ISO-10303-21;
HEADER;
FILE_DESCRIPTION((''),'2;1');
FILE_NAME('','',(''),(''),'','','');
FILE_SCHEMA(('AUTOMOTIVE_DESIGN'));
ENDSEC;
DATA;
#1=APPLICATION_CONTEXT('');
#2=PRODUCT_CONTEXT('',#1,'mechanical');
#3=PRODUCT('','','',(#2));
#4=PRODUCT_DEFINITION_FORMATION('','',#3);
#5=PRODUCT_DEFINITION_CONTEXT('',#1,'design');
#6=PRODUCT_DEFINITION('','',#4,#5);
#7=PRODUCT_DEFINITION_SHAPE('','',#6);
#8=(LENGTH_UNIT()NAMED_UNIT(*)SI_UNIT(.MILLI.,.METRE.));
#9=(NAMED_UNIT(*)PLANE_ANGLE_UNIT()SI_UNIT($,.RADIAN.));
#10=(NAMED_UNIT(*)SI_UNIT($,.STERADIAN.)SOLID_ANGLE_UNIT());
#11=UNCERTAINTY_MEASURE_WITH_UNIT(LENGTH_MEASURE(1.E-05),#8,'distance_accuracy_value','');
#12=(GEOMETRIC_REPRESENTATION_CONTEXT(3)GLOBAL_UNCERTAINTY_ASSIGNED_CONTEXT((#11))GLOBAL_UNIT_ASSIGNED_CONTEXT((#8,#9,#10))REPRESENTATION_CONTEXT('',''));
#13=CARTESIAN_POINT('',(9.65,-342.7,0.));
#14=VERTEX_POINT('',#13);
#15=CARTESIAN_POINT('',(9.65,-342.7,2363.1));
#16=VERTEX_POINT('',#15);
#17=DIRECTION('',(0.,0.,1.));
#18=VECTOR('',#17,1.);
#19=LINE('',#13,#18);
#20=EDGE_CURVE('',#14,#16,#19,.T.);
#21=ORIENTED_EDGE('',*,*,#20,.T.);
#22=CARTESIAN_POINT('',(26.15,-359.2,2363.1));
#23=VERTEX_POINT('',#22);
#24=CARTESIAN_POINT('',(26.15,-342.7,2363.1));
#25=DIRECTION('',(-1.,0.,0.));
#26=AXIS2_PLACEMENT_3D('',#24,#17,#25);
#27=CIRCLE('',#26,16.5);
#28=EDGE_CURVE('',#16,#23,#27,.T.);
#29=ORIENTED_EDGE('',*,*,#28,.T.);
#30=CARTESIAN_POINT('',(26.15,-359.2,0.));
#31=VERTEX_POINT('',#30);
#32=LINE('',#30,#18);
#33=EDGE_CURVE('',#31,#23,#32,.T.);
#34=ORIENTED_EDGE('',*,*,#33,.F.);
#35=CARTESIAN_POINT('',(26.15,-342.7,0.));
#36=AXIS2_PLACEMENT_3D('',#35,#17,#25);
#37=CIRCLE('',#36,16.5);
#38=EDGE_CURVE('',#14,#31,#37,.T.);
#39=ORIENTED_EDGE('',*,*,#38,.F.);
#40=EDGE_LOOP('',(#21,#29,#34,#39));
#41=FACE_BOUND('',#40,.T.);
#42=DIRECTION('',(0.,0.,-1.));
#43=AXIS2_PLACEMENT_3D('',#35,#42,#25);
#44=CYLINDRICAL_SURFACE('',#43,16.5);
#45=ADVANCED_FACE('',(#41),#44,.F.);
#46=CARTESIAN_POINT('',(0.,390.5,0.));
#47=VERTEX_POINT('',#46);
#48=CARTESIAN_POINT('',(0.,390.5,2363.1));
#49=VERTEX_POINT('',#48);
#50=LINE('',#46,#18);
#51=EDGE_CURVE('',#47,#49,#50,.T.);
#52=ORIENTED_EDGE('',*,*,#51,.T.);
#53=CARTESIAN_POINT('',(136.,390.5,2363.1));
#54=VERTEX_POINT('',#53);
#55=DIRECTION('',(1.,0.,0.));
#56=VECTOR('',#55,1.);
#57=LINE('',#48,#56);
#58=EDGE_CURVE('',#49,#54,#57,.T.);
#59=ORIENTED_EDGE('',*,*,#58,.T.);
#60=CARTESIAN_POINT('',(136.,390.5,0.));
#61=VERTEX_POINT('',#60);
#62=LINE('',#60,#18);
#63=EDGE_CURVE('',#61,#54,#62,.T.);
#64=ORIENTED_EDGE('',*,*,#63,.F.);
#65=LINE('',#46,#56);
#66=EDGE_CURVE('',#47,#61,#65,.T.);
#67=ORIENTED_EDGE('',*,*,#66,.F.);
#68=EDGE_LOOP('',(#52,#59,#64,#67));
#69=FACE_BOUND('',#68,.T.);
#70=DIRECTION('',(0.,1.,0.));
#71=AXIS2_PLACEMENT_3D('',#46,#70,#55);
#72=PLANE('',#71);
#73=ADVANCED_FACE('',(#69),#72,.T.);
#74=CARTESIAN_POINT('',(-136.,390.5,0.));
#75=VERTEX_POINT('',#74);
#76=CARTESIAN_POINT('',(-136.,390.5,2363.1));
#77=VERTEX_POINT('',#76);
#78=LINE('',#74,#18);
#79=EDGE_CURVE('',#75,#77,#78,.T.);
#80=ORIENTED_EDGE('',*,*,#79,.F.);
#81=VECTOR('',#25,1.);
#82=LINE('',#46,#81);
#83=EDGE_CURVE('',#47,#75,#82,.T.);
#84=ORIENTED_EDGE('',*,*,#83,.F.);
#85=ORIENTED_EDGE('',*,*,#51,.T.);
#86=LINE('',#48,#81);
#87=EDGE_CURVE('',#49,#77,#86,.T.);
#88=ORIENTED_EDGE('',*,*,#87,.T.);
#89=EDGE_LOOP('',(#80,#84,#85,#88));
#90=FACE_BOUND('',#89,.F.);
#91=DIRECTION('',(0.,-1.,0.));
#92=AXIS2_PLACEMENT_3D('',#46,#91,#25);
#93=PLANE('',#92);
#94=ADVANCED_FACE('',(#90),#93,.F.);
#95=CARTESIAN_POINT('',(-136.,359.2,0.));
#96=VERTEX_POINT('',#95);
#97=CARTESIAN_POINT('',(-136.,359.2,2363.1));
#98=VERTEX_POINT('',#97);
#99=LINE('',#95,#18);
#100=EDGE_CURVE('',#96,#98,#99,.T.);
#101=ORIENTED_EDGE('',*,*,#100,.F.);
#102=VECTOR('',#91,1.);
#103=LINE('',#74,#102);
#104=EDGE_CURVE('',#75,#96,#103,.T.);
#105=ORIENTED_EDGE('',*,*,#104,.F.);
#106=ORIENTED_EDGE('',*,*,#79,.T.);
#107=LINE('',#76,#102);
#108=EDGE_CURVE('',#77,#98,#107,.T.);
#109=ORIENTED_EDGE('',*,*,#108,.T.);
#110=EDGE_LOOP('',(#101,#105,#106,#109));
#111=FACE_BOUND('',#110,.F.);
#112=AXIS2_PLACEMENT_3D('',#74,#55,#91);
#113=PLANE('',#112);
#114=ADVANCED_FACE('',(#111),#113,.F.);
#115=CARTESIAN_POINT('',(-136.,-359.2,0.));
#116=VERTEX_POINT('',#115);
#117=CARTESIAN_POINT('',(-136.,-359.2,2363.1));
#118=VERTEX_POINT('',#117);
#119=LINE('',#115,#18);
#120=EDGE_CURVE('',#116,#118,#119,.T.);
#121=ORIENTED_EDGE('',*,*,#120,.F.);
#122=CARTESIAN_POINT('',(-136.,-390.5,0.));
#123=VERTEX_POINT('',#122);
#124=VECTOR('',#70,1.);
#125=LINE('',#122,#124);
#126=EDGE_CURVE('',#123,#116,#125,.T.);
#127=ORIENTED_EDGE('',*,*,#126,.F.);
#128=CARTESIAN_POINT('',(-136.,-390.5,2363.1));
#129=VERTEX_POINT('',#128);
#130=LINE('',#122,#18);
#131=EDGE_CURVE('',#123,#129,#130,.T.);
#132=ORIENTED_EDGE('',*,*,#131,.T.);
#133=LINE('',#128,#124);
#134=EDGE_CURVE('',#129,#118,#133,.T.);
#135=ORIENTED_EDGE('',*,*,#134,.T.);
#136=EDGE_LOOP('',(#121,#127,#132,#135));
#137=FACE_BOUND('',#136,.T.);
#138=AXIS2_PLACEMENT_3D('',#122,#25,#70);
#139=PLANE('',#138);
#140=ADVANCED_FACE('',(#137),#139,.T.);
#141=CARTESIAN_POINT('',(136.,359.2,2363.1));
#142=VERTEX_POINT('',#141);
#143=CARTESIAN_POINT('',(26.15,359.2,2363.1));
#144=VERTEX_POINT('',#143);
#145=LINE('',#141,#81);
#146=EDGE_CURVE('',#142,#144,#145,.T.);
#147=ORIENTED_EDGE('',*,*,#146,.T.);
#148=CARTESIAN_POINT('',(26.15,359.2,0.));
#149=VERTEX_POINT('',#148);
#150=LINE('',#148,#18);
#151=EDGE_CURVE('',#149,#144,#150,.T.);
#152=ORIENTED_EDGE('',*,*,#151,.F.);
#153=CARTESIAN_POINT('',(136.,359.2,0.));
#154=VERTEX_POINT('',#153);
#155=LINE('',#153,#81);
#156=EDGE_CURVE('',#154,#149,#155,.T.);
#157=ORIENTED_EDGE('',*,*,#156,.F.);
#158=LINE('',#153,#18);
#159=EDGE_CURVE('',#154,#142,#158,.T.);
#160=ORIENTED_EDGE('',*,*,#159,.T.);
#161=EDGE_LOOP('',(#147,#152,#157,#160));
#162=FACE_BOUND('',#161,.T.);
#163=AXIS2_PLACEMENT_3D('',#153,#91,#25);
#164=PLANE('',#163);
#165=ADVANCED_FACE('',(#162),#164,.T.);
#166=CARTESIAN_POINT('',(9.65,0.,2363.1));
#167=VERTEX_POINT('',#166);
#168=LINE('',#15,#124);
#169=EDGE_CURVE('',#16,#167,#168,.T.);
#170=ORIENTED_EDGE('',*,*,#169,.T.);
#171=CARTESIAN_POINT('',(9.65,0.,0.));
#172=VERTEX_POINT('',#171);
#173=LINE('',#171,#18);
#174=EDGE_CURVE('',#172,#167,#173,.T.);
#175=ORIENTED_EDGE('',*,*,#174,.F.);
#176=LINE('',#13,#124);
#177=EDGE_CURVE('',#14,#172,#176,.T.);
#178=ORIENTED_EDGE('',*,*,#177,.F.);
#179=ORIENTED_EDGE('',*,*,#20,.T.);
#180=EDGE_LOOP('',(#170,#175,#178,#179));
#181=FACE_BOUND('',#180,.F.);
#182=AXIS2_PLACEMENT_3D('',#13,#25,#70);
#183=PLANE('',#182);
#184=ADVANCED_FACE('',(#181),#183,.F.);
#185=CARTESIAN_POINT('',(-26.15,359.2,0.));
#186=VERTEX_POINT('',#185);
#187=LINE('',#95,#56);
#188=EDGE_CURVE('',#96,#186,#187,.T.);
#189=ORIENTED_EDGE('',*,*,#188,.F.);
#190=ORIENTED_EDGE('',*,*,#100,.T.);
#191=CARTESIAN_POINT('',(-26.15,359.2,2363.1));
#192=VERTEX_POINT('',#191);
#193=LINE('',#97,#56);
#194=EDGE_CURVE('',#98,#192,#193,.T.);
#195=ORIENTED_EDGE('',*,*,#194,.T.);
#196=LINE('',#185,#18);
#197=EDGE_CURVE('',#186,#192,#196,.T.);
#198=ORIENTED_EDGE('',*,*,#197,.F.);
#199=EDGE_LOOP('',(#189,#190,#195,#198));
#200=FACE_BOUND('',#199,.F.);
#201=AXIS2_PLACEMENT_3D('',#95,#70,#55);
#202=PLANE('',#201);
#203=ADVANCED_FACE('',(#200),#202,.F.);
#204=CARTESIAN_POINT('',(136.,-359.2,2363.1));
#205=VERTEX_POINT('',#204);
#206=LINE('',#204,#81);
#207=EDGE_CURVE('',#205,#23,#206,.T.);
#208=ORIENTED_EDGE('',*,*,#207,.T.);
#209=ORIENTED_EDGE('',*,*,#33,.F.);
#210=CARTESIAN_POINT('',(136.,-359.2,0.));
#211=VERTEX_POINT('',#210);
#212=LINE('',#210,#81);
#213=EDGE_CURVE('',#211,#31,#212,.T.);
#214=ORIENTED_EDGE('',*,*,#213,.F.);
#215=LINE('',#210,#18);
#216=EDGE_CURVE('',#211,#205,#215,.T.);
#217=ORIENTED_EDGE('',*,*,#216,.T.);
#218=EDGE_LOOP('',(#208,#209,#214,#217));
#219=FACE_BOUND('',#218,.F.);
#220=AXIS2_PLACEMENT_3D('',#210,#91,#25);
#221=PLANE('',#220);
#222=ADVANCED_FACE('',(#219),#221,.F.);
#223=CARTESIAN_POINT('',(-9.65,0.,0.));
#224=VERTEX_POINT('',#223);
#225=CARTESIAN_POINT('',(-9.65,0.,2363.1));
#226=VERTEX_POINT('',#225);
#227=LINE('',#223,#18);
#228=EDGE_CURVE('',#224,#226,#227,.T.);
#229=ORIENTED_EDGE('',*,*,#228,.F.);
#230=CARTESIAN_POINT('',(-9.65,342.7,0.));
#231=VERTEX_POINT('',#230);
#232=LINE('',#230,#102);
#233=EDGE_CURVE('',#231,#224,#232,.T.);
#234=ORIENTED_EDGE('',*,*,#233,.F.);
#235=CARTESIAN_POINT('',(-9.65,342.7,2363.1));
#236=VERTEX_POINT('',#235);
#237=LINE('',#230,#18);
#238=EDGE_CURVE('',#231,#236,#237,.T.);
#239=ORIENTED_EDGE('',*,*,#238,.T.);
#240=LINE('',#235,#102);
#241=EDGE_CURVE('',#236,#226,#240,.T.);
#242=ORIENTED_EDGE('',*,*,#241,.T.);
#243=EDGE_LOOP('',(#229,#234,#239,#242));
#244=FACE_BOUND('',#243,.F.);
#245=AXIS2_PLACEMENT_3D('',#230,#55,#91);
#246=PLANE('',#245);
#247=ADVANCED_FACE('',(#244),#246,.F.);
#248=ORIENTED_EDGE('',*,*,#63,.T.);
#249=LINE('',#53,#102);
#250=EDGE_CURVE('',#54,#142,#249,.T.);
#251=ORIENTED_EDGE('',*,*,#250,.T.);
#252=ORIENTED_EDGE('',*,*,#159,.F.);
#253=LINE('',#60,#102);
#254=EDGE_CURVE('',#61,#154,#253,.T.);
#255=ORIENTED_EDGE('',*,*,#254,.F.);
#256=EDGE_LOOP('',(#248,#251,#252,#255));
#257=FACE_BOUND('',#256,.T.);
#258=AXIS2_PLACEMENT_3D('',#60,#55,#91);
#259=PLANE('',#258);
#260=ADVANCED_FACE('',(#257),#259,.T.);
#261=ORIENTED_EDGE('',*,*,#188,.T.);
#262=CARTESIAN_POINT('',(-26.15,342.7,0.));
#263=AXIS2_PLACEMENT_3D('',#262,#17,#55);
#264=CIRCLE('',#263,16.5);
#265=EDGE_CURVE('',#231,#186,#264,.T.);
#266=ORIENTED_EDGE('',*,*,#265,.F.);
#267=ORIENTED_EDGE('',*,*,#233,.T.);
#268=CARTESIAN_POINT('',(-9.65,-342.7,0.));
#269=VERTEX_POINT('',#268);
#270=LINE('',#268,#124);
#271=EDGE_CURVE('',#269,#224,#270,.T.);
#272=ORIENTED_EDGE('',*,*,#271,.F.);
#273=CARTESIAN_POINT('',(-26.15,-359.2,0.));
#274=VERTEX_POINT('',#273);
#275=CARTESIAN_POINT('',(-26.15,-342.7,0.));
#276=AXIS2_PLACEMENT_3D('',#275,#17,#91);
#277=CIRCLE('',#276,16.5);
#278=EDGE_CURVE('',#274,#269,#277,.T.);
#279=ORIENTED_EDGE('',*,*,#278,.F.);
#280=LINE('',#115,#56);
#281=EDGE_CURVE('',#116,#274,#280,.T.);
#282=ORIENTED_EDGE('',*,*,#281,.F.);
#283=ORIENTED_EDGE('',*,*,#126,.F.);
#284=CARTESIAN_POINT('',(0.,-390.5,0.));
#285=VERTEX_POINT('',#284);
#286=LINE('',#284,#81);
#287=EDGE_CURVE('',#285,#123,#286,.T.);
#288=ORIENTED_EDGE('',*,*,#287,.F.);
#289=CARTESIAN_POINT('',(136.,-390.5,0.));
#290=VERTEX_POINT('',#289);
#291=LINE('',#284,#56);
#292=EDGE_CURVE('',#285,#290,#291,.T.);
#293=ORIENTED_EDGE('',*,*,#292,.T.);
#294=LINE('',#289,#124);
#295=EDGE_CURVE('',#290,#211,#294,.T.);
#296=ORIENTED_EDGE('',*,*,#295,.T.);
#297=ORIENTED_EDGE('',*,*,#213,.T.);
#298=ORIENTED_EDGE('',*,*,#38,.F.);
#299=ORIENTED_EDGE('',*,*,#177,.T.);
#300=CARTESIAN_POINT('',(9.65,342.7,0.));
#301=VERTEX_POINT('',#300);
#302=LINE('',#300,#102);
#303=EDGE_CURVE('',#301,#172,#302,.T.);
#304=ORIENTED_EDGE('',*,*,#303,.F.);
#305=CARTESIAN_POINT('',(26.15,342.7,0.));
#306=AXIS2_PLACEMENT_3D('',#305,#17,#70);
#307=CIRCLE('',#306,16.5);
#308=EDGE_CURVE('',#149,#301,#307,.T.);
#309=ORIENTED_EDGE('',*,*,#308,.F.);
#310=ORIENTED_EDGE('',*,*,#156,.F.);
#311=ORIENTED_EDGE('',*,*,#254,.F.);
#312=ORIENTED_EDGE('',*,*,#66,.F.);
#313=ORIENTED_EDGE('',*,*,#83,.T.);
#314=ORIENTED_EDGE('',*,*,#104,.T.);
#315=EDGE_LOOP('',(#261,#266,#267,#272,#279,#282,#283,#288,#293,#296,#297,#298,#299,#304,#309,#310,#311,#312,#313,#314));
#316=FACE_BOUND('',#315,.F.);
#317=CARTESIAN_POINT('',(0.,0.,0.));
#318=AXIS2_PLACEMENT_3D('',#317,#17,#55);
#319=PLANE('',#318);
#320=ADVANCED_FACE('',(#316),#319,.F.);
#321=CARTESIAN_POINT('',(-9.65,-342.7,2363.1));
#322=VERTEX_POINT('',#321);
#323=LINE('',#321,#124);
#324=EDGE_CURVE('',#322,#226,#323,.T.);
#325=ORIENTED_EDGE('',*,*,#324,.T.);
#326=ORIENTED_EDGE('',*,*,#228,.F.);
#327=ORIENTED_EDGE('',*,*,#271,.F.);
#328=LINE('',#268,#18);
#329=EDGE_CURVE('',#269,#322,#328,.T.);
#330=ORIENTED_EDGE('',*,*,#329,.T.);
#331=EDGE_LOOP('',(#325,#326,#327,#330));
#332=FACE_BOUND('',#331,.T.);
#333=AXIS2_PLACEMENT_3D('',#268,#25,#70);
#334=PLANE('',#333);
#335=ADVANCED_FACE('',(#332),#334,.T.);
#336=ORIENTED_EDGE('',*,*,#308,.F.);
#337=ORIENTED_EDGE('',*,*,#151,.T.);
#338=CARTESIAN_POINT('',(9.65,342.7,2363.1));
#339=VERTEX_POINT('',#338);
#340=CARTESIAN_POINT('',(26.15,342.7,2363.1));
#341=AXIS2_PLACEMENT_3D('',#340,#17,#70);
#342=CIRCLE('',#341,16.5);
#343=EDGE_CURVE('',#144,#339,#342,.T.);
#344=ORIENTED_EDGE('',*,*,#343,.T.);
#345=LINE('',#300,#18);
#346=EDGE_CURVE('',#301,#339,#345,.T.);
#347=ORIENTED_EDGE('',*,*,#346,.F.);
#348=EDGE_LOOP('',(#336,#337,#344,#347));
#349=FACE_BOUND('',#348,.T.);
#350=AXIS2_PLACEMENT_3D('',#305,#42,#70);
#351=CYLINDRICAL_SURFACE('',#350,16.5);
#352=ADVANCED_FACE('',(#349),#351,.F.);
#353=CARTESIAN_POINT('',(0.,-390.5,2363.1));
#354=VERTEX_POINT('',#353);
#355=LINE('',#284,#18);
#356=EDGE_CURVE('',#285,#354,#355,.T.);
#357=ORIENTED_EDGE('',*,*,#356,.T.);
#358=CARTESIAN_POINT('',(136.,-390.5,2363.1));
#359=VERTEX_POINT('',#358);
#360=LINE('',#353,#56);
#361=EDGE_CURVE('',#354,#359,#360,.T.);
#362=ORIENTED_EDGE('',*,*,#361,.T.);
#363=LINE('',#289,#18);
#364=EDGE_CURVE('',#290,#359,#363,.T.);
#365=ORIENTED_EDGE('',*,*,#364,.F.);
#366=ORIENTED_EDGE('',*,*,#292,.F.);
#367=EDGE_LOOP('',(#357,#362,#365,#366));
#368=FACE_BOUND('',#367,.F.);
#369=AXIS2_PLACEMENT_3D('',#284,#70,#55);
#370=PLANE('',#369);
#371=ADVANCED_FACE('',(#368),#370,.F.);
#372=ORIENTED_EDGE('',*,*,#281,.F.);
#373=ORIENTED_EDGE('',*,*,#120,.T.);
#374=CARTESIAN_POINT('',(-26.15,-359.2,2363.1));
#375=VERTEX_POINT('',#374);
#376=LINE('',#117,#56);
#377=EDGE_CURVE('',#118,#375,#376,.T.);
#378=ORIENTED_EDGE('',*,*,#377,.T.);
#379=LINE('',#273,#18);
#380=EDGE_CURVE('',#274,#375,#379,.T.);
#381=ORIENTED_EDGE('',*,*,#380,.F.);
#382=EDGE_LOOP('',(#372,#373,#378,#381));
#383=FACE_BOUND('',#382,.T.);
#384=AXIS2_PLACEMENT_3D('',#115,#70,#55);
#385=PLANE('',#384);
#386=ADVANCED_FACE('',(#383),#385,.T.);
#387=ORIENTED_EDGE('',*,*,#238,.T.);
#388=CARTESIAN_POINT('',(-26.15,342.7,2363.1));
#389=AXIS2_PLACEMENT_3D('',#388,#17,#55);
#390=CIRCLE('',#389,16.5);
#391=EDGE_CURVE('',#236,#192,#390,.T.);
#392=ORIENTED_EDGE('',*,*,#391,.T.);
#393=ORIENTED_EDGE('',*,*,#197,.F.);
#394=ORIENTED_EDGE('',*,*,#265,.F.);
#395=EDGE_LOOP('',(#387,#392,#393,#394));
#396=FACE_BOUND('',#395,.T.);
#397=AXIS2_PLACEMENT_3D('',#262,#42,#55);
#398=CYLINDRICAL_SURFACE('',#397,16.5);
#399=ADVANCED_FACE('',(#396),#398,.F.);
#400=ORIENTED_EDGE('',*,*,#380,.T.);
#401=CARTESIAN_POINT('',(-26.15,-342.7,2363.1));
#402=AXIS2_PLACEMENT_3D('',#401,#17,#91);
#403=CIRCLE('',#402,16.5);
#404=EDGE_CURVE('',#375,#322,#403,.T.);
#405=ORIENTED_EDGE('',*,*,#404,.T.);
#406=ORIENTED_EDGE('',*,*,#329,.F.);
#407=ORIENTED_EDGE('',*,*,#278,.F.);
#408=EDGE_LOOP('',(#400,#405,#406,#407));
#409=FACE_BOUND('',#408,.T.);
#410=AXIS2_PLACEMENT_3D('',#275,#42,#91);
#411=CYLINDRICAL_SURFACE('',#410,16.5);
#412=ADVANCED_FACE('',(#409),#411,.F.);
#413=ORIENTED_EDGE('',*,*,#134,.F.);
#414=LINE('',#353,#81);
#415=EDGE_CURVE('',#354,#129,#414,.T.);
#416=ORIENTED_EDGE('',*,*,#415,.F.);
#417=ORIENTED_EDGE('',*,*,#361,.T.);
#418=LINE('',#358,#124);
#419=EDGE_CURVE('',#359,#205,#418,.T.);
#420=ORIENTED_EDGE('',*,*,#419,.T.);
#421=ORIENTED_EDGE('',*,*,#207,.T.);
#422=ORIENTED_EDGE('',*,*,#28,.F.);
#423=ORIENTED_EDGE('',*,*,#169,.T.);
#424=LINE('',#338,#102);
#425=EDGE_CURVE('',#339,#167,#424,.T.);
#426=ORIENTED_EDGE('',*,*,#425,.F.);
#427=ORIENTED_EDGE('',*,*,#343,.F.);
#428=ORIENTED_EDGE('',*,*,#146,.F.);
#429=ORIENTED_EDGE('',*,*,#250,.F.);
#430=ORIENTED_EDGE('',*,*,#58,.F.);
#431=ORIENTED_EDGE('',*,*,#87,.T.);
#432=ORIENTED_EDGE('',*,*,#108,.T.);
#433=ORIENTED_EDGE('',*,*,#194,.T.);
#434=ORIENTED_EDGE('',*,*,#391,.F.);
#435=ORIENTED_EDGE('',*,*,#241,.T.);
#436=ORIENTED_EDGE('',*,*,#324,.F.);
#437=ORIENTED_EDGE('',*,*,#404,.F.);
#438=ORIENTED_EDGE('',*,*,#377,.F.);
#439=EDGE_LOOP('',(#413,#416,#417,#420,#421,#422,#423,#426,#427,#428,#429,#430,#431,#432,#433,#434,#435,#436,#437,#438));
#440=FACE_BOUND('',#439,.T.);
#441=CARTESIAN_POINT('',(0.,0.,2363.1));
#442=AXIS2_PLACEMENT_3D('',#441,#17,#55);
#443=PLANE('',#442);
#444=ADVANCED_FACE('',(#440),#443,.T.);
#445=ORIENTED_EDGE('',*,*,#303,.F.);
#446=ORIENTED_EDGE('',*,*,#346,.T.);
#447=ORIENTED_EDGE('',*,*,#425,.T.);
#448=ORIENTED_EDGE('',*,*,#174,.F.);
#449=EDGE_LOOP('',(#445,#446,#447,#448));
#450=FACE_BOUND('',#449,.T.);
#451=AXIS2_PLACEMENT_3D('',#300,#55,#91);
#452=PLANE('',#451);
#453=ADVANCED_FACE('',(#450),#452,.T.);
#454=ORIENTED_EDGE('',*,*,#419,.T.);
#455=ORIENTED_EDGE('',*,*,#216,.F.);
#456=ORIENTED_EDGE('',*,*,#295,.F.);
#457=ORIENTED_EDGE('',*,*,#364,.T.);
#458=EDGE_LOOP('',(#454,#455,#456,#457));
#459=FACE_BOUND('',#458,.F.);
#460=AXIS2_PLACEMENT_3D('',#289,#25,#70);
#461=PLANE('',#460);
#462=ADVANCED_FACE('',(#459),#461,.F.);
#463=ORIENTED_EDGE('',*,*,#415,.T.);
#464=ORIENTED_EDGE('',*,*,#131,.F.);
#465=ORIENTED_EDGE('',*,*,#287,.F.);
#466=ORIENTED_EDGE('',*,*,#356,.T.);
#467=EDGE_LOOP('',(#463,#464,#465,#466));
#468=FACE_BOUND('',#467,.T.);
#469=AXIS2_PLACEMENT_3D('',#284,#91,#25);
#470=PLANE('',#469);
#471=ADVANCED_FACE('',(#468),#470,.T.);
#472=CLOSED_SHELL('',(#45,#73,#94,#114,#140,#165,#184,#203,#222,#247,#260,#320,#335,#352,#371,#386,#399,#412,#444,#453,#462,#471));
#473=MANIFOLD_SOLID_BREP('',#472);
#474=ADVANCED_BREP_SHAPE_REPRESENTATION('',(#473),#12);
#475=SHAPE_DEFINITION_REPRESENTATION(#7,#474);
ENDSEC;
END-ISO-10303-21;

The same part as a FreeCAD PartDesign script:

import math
import FreeCAD as App
import Part
import Sketcher
Q = App.Units.Quantity

doc = App.newDocument("Part")
body = doc.addObject("PartDesign::Body", "Body")

# Sketch on XY plane
sketch1 = doc.addObject("Sketcher::SketchObject", "Sketch")
body.addObject(sketch1)
sketch1.AttachmentSupport = (doc.XY_Plane, [""])
sketch1.MapMode = "FlatFace"
sketch1.addGeometry([
    Part.LineSegment(App.Vector(-136, -359, 0), App.Vector(-136, -390, 0)),  # 0
    Part.LineSegment(App.Vector(-136, -390, 0), App.Vector(136, -390, 0)),  # 1
    Part.LineSegment(App.Vector(136, -390, 0), App.Vector(136, -359, 0)),  # 2
    Part.LineSegment(App.Vector(136, -359, 0), App.Vector(26, -359, 0)),  # 3
    Part.ArcOfCircle(Part.Circle(App.Vector(26, -343, 0), App.Vector(0, 0, 1), 16), math.radians(180), math.radians(270)),  # 4
    Part.LineSegment(App.Vector(10, -343, 0), App.Vector(10, 343, 0)),  # 5
    Part.ArcOfCircle(Part.Circle(App.Vector(26, 343, 0), App.Vector(0, 0, 1), 16), math.radians(90), math.radians(180)),  # 6
    Part.LineSegment(App.Vector(26, 359, 0), App.Vector(136, 359, 0)),  # 7
    Part.LineSegment(App.Vector(136, 359, 0), App.Vector(136, 390, 0)),  # 8
    Part.LineSegment(App.Vector(136, 390, 0), App.Vector(-136, 390, 0)),  # 9
    Part.LineSegment(App.Vector(-136, 390, 0), App.Vector(-136, 359, 0)),  # 10
    Part.LineSegment(App.Vector(-136, 359, 0), App.Vector(-26, 359, 0)),  # 11
    Part.ArcOfCircle(Part.Circle(App.Vector(-26, 343, 0), App.Vector(0, 0, 1), 16), math.radians(0), math.radians(90)),  # 12
    Part.LineSegment(App.Vector(-10, 343, 0), App.Vector(-10, -343, 0)),  # 13
    Part.ArcOfCircle(Part.Circle(App.Vector(-26, -343, 0), App.Vector(0, 0, 1), 16), math.radians(-90), math.radians(0)),  # 14
    Part.LineSegment(App.Vector(-26, -359, 0), App.Vector(-136, -359, 0)),  # 15
], False)
sketch1.addConstraint([
    Sketcher.Constraint("Coincident", 0, 2, 1, 1),
    Sketcher.Constraint("Coincident", 1, 2, 2, 1),
    Sketcher.Constraint("Coincident", 2, 2, 3, 1),
    Sketcher.Constraint("Tangent", 3, 2, 4, 2),
    Sketcher.Constraint("Tangent", 4, 1, 5, 1),
    Sketcher.Constraint("Tangent", 5, 2, 6, 2),
    Sketcher.Constraint("Tangent", 6, 1, 7, 1),
    Sketcher.Constraint("Coincident", 7, 2, 8, 1),
    Sketcher.Constraint("Coincident", 8, 2, 9, 1),
    Sketcher.Constraint("Coincident", 9, 2, 10, 1),
    Sketcher.Constraint("Coincident", 10, 2, 11, 1),
    Sketcher.Constraint("Tangent", 11, 2, 12, 2),
    Sketcher.Constraint("Tangent", 12, 1, 13, 1),
    Sketcher.Constraint("Tangent", 13, 2, 14, 2),
    Sketcher.Constraint("Tangent", 14, 1, 15, 1),
    Sketcher.Constraint("Coincident", 15, 2, 0, 1),
    Sketcher.Constraint("Vertical", 0),
    Sketcher.Constraint("Horizontal", 1),
    Sketcher.Constraint("Vertical", 2),
    Sketcher.Constraint("Horizontal", 3),
    Sketcher.Constraint("Vertical", 5),
    Sketcher.Constraint("Horizontal", 7),
    Sketcher.Constraint("Vertical", 8),
    Sketcher.Constraint("Horizontal", 9),
    Sketcher.Constraint("Vertical", 10),
    Sketcher.Constraint("Horizontal", 11),
    Sketcher.Constraint("Vertical", 13),
    Sketcher.Constraint("Horizontal", 15),
    Sketcher.Constraint("Equal", 4, 6),
    Sketcher.Constraint("Equal", 6, 12),
    Sketcher.Constraint("Equal", 12, 14),
    Sketcher.Constraint("Symmetric", 4, 3, 12, 3, -1, 1),
    Sketcher.Constraint("Symmetric", 0, 2, 8, 2, -1, 1),
    Sketcher.Constraint("Symmetric", 7, 2, 10, 2, -2),
    Sketcher.Constraint("Symmetric", 2, 2, 15, 2, -2),
    Sketcher.Constraint("Radius", 4, Q("16.5 mm")),
    Sketcher.Constraint("DistanceY", 0, 2, 0, 1, Q("31.3 mm")),
    Sketcher.Constraint("DistanceX", 0, 2, -1, 1, Q("136 mm")),
    Sketcher.Constraint("DistanceY", 0, 2, -1, 1, Q("390.5 mm")),
    Sketcher.Constraint("DistanceX", -1, 1, 4, 1, Q("9.65 mm")),
])
pad1 = doc.addObject("PartDesign::Pad", "Pad")
body.addObject(pad1)
pad1.Profile = sketch1
pad1.Length = 2363.1

doc.recompute()
